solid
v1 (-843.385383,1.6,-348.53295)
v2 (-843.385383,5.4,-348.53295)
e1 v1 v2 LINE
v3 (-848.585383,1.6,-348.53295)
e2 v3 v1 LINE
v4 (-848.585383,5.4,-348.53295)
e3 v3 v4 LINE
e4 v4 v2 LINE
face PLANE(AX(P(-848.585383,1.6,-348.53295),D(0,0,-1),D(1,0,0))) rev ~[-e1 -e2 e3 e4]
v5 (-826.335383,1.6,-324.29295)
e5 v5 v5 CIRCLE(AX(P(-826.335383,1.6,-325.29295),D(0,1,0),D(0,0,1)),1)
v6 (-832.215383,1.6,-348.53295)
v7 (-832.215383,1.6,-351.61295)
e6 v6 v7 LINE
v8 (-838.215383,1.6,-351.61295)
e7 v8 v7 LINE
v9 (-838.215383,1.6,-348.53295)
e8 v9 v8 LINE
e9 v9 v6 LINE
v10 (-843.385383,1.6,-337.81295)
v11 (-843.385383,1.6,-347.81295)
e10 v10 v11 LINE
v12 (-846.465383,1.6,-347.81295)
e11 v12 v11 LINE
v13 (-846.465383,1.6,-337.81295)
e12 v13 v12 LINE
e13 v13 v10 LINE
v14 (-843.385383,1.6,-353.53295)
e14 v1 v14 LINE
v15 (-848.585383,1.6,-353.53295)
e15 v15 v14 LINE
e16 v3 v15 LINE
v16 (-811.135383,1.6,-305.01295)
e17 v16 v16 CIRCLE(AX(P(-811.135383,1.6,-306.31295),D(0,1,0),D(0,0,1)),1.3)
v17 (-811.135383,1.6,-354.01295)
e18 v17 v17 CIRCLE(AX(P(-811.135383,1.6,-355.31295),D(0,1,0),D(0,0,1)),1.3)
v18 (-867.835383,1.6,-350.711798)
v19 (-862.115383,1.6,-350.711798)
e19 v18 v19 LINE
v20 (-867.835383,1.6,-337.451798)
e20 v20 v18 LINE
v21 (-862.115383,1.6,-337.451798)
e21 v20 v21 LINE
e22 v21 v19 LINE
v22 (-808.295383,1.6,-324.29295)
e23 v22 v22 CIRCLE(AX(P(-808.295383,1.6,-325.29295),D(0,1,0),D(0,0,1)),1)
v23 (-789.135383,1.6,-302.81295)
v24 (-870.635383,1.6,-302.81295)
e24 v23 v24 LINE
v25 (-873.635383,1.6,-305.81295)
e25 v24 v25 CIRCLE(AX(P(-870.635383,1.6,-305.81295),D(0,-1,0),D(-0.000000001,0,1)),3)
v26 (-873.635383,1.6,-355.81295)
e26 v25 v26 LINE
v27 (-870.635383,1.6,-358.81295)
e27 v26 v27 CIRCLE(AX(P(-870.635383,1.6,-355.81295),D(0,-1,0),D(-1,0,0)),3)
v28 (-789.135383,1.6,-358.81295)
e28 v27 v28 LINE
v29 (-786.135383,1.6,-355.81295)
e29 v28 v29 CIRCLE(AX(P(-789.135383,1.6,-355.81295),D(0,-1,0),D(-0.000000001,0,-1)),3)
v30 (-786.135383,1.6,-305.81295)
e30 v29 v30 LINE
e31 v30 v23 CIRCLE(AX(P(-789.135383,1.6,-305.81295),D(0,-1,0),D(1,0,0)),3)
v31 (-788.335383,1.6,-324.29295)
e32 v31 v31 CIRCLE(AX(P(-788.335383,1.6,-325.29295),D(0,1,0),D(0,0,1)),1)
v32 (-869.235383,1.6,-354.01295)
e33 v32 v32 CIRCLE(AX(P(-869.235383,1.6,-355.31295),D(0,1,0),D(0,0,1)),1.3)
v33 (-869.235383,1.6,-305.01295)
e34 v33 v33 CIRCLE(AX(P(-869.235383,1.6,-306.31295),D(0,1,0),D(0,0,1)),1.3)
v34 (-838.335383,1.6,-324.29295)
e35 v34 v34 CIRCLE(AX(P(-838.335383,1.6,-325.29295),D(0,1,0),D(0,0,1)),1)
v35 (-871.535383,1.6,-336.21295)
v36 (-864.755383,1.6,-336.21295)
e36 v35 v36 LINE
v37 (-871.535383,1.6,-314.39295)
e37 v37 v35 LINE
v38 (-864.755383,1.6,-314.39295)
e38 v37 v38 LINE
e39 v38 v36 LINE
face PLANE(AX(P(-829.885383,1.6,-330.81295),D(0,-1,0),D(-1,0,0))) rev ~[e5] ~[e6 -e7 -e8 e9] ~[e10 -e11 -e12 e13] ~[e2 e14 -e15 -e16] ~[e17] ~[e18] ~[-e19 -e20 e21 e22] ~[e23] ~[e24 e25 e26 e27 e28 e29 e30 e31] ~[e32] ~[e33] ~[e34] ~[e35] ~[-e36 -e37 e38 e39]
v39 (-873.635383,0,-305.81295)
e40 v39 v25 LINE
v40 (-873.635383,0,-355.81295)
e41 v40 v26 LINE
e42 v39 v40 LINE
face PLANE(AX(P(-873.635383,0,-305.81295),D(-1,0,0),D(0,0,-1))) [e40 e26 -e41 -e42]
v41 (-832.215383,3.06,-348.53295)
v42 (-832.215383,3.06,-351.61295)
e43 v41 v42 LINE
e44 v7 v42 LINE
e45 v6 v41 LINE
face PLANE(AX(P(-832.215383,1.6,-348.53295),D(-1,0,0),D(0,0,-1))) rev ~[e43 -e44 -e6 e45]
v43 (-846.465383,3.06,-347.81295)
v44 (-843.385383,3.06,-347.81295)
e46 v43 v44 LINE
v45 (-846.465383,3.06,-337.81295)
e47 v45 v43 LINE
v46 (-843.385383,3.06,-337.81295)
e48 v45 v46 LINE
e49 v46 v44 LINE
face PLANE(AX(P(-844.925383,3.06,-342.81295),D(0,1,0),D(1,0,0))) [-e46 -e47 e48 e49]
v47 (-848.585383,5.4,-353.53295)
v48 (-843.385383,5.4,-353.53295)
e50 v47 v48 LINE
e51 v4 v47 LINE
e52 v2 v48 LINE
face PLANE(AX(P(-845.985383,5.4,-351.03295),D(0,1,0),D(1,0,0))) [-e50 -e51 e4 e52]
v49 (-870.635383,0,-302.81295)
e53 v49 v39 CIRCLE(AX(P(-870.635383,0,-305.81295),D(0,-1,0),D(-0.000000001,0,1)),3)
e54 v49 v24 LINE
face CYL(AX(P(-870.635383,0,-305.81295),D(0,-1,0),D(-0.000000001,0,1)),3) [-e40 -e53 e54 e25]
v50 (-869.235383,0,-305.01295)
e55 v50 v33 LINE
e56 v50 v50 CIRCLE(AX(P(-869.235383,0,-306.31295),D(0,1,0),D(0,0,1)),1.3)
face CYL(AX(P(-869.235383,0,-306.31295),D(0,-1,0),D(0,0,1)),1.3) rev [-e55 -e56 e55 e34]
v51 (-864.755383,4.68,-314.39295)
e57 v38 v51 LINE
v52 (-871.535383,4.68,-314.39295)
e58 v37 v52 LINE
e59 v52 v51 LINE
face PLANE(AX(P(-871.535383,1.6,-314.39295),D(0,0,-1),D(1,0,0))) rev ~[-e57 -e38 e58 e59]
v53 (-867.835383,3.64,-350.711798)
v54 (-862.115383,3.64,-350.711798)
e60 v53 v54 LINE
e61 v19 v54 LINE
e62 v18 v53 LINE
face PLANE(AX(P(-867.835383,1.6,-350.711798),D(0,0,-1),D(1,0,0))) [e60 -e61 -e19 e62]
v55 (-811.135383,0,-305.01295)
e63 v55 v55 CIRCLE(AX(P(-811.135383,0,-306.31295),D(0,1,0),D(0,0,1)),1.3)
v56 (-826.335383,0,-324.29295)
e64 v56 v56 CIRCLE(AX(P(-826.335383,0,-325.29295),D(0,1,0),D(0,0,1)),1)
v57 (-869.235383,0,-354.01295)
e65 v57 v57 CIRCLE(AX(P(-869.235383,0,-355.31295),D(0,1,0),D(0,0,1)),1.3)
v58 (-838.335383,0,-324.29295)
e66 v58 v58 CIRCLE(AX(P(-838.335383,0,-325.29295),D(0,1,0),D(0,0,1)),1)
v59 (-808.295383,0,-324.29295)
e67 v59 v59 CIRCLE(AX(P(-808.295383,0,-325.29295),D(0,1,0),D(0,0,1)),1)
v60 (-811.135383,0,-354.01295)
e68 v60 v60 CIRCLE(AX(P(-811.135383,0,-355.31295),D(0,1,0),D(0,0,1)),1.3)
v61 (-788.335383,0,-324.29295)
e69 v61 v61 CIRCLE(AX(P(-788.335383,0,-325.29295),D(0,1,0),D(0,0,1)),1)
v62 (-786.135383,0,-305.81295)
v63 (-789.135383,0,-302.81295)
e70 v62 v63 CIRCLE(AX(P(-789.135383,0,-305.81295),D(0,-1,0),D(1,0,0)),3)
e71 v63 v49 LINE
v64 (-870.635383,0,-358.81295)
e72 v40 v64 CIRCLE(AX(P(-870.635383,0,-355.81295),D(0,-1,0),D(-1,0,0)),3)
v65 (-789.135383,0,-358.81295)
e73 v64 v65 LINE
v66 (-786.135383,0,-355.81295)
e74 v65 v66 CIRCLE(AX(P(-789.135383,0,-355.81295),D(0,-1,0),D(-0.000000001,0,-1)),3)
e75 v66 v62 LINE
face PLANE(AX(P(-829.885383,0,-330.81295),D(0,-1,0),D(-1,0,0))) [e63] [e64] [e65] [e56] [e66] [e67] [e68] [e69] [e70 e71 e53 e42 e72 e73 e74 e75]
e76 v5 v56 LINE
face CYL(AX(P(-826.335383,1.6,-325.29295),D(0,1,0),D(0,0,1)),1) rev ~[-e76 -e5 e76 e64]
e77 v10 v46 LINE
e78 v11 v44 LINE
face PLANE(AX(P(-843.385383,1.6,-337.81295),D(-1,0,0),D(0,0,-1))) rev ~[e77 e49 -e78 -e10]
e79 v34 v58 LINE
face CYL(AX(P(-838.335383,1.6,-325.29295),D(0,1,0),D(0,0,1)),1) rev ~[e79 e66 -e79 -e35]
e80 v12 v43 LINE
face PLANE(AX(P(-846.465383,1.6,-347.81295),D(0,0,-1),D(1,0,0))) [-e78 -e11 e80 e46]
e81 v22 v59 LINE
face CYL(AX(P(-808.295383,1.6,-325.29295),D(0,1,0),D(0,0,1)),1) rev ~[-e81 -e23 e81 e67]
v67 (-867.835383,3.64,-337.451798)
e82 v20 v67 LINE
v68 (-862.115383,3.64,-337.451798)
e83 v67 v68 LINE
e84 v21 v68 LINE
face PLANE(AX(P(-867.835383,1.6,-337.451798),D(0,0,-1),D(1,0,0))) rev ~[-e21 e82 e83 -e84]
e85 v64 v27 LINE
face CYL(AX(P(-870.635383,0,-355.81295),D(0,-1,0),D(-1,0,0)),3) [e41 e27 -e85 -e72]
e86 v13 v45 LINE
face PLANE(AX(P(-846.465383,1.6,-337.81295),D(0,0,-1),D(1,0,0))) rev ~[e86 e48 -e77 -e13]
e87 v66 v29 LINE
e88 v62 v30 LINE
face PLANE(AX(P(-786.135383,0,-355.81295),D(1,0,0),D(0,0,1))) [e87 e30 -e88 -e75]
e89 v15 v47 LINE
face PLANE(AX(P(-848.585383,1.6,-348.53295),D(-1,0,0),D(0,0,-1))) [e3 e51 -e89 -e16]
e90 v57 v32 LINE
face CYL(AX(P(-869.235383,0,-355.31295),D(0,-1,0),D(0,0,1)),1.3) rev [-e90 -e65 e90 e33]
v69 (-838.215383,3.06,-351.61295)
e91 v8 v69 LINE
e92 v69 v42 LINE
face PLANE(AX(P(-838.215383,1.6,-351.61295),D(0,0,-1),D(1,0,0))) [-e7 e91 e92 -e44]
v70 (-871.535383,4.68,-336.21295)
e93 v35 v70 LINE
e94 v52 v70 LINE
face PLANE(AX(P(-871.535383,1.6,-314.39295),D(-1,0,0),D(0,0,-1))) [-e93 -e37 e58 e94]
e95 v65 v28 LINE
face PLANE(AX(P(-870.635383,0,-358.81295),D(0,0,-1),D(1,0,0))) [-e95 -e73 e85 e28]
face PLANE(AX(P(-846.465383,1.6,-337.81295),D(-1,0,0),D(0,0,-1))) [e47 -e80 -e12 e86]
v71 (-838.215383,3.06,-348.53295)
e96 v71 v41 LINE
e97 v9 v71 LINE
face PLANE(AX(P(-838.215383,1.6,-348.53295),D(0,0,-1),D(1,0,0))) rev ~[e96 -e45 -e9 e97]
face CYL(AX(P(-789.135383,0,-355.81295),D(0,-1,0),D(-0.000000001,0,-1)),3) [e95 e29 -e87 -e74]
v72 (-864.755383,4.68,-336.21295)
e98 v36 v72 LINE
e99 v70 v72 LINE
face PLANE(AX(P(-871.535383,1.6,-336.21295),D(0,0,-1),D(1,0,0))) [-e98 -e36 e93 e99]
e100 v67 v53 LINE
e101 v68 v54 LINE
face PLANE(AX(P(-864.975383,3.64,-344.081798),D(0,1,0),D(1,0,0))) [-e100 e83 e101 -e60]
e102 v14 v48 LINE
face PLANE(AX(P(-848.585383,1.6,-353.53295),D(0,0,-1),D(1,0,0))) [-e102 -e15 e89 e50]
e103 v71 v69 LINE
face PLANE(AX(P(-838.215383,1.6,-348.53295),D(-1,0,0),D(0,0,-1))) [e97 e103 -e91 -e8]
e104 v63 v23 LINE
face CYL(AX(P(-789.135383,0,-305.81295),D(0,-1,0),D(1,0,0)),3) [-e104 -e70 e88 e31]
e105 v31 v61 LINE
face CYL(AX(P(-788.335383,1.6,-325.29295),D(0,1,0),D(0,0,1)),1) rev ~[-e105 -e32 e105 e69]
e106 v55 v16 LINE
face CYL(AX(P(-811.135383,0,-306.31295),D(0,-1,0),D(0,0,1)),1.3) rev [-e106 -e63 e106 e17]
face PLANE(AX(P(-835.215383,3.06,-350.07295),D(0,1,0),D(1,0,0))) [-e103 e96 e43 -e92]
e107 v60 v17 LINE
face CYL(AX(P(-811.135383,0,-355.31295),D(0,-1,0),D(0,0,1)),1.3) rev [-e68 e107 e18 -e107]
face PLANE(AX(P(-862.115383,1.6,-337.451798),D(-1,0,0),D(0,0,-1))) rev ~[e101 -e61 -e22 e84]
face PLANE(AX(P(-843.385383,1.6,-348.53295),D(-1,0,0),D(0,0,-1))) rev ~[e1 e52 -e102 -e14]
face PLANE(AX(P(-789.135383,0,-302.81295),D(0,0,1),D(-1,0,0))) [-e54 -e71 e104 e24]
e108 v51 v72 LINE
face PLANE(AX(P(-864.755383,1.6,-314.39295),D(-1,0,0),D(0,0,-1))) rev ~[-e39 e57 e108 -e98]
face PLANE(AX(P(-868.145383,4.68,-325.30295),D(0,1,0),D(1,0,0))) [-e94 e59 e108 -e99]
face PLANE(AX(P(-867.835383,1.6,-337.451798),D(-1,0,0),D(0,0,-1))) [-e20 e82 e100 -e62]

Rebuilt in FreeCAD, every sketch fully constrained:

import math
import FreeCAD as App
import Part
import Sketcher
from FreeCAD import Vector
Q = App.Units.Quantity


def add_polygon(sketch, points):
    """Adds a closed chain of lines whose ends are joined by coincident constraints."""
    first, n = sketch.GeometryCount, len(points)
    for a, b in zip(points, points[1:] + points[:1]):
        sketch.addGeometry(Part.LineSegment(App.Vector(*a, 0), App.Vector(*b, 0)), False)
    for i in range(n):
        sketch.addConstraint(Sketcher.Constraint("Coincident", first + i, 2, first + (i + 1) % n, 1))

doc = App.newDocument("Part")
body = doc.addObject("PartDesign::Body", "Body")

sketch1 = doc.addObject("Sketcher::SketchObject", "Sketch")
body.addObject(sketch1)
sketch1.AttachmentSupport = (doc.XZ_Plane, [""])
sketch1.MapMode = "FlatFace"
sketch1.addGeometry(Part.LineSegment(Vector(-789.1, -358.8, 0), Vector(-870.6, -358.8, 0)), False)
sketch1.addGeometry(Part.ArcOfCircle(Part.Circle(Vector(-870.6, -355.8, 0), Vector(0, 0, 1), 3), math.radians(180), math.radians(270)), False)
sketch1.addGeometry(Part.LineSegment(Vector(-873.6, -355.8, 0), Vector(-873.6, -305.8, 0)), False)
sketch1.addGeometry(Part.ArcOfCircle(Part.Circle(Vector(-870.6, -305.8, 0), Vector(0, 0, 1), 3), math.radians(90), math.radians(180)), False)
sketch1.addGeometry(Part.LineSegment(Vector(-870.6, -302.8, 0), Vector(-789.1, -302.8, 0)), False)
sketch1.addGeometry(Part.ArcOfCircle(Part.Circle(Vector(-789.1, -305.8, 0), Vector(0, 0, 1), 3), math.radians(0), math.radians(90)), False)
sketch1.addGeometry(Part.LineSegment(Vector(-786.1, -305.8, 0), Vector(-786.1, -355.8, 0)), False)
sketch1.addGeometry(Part.ArcOfCircle(Part.Circle(Vector(-789.1, -355.8, 0), Vector(0, 0, 1), 3), math.radians(-90), math.radians(0)), False)
sketch1.addGeometry(Part.Circle(Vector(-811.1, -306.3, 0), Vector(0, 0, 1), 1.3), False)
sketch1.addGeometry(Part.Circle(Vector(-869.2, -306.3, 0), Vector(0, 0, 1), 1.3), False)
sketch1.addGeometry(Part.Circle(Vector(-811.1, -355.3, 0), Vector(0, 0, 1), 1.3), False)
sketch1.addGeometry(Part.Circle(Vector(-869.2, -355.3, 0), Vector(0, 0, 1), 1.3), False)
sketch1.addConstraint(Sketcher.Constraint("Tangent", 0, 2, 1, 2))
sketch1.addConstraint(Sketcher.Constraint("Tangent", 1, 1, 2, 1))
sketch1.addConstraint(Sketcher.Constraint("Tangent", 2, 2, 3, 2))
sketch1.addConstraint(Sketcher.Constraint("Tangent", 3, 1, 4, 1))
sketch1.addConstraint(Sketcher.Constraint("Tangent", 4, 2, 5, 2))
sketch1.addConstraint(Sketcher.Constraint("Tangent", 5, 1, 6, 1))
sketch1.addConstraint(Sketcher.Constraint("Tangent", 6, 2, 7, 2))
sketch1.addConstraint(Sketcher.Constraint("Tangent", 7, 1, 0, 1))
sketch1.addConstraint(Sketcher.Constraint("Horizontal", 0))
sketch1.addConstraint(Sketcher.Constraint("Vertical", 2))
sketch1.addConstraint(Sketcher.Constraint("Horizontal", 4))
sketch1.addConstraint(Sketcher.Constraint("Vertical", 6))
sketch1.addConstraint(Sketcher.Constraint("Equal", 1, 3))
sketch1.addConstraint(Sketcher.Constraint("Equal", 3, 5))
sketch1.addConstraint(Sketcher.Constraint("Equal", 5, 7))
sketch1.addConstraint(Sketcher.Constraint("Equal", 8, 9))
sketch1.addConstraint(Sketcher.Constraint("Equal", 9, 10))
sketch1.addConstraint(Sketcher.Constraint("Equal", 10, 11))
sketch1.addConstraint(Sketcher.Constraint("Horizontal", 8, 3, 9, 3))
sketch1.addConstraint(Sketcher.Constraint("Horizontal", 10, 3, 11, 3))
sketch1.addConstraint(Sketcher.Constraint("Vertical", 8, 3, 10, 3))
sketch1.addConstraint(Sketcher.Constraint("Vertical", 9, 3, 11, 3))
sketch1.addConstraint(Sketcher.Constraint("Radius", 1, Q("3 mm")))
sketch1.addConstraint(Sketcher.Constraint("Diameter", 8, Q("2.6 mm")))
sketch1.addConstraint(Sketcher.Constraint("DistanceY", 2, 1, 2, 2, Q("50 mm")))
sketch1.addConstraint(Sketcher.Constraint("DistanceX", 0, 2, 0, 1, Q("81.5 mm")))
sketch1.addConstraint(Sketcher.Constraint("DistanceX", 8, 3, 5, 3, Q("22 mm")))
sketch1.addConstraint(Sketcher.Constraint("DistanceY", 10, 3, 8, 3, Q("49 mm")))
sketch1.addConstraint(Sketcher.Constraint("DistanceY", 8, 3, 5, 3, Q("0.5 mm")))
sketch1.addConstraint(Sketcher.Constraint("DistanceX", 3, 3, 9, 3, Q("1.4 mm")))
sketch1.addConstraint(Sketcher.Constraint("DistanceY", 1, 3, -1, 1, Q("355.81295 mm")))
sketch1.addConstraint(Sketcher.Constraint("DistanceX", 1, 3, -1, 1, Q("870.635383 mm")))
pad1 = doc.addObject("PartDesign::Pad", "Pad")
body.addObject(pad1)
pad1.Profile = sketch1
pad1.Length = 1.6
pad1.Reversed = True

sketch2 = doc.addObject("Sketcher::SketchObject", "Sketch001")
body.addObject(sketch2)
sketch2.AttachmentSupport = (doc.XZ_Plane, [""])
sketch2.MapMode = "FlatFace"
sketch2.AttachmentOffset = App.Placement(Vector(0, 0, -1.6), App.Rotation())
sketch2.addGeometry(Part.Circle(Vector(-788.3, -325.3, 0), Vector(0, 0, 1), 1), False)
sketch2.addConstraint(Sketcher.Constraint("Diameter", 0, Q("2 mm")))
sketch2.addConstraint(Sketcher.Constraint("DistanceY", 0, 3, -1, 1, Q("325.29295 mm")))
sketch2.addConstraint(Sketcher.Constraint("DistanceX", 0, 3, -1, 1, Q("788.335383 mm")))
pocket1 = doc.addObject("PartDesign::Pocket", "Pocket")
body.addObject(pocket1)
pocket1.Profile = sketch2
pocket1.Type = "UpToFirst"
pocket1.Reversed = True

sketch3 = doc.addObject("Sketcher::SketchObject", "Sketch002")
body.addObject(sketch3)
sketch3.AttachmentSupport = (doc.XZ_Plane, [""])
sketch3.MapMode = "FlatFace"
sketch3.AttachmentOffset = App.Placement(Vector(0, 0, -1.6), App.Rotation())
sketch3.addGeometry(Part.Circle(Vector(-808.3, -325.3, 0), Vector(0, 0, 1), 1), False)
sketch3.addConstraint(Sketcher.Constraint("Diameter", 0, Q("2 mm")))
sketch3.addConstraint(Sketcher.Constraint("DistanceY", 0, 3, -1, 1, Q("325.29295 mm")))
sketch3.addConstraint(Sketcher.Constraint("DistanceX", 0, 3, -1, 1, Q("808.295383 mm")))
pocket2 = doc.addObject("PartDesign::Pocket", "Pocket001")
body.addObject(pocket2)
pocket2.Profile = sketch3
pocket2.Type = "UpToFirst"
pocket2.Reversed = True

sketch4 = doc.addObject("Sketcher::SketchObject", "Sketch003")
body.addObject(sketch4)
sketch4.AttachmentSupport = (doc.XZ_Plane, [""])
sketch4.MapMode = "FlatFace"
sketch4.AttachmentOffset = App.Placement(Vector(0, 0, -1.6), App.Rotation())
sketch4.addGeometry(Part.Circle(Vector(-826.3, -325.3, 0), Vector(0, 0, 1), 1), False)
sketch4.addConstraint(Sketcher.Constraint("Diameter", 0, Q("2 mm")))
sketch4.addConstraint(Sketcher.Constraint("DistanceY", 0, 3, -1, 1, Q("325.29295 mm")))
sketch4.addConstraint(Sketcher.Constraint("DistanceX", 0, 3, -1, 1, Q("826.335383 mm")))
pocket3 = doc.addObject("PartDesign::Pocket", "Pocket002")
body.addObject(pocket3)
pocket3.Profile = sketch4
pocket3.Type = "UpToFirst"
pocket3.Reversed = True

sketch5 = doc.addObject("Sketcher::SketchObject", "Sketch004")
body.addObject(sketch5)
sketch5.AttachmentSupport = (doc.XZ_Plane, [""])
sketch5.MapMode = "FlatFace"
sketch5.AttachmentOffset = App.Placement(Vector(0, 0, -1.6), App.Rotation())
sketch5.addGeometry(Part.Circle(Vector(-838.3, -325.3, 0), Vector(0, 0, 1), 1), False)
sketch5.addConstraint(Sketcher.Constraint("Diameter", 0, Q("2 mm")))
sketch5.addConstraint(Sketcher.Constraint("DistanceY", 0, 3, -1, 1, Q("325.29295 mm")))
sketch5.addConstraint(Sketcher.Constraint("DistanceX", 0, 3, -1, 1, Q("838.335383 mm")))
pocket4 = doc.addObject("PartDesign::Pocket", "Pocket003")
body.addObject(pocket4)
pocket4.Profile = sketch5
pocket4.Type = "UpToFirst"
pocket4.Reversed = True

sketch6 = doc.addObject("Sketcher::SketchObject", "Sketch005")
body.addObject(sketch6)
sketch6.AttachmentSupport = (doc.XZ_Plane, [""])
sketch6.MapMode = "FlatFace"
sketch6.AttachmentOffset = App.Placement(Vector(0, 0, -1.6), App.Rotation())
add_polygon(sketch6, [(-872, -336), (-872, -314), (-865, -314), (-865, -336)])
sketch6.addConstraint(Sketcher.Constraint("Vertical", 0))
sketch6.addConstraint(Sketcher.Constraint("Horizontal", 1))
sketch6.addConstraint(Sketcher.Constraint("Vertical", 2))
sketch6.addConstraint(Sketcher.Constraint("Horizontal", 3))
sketch6.addConstraint(Sketcher.Constraint("DistanceX", 1, 1, 1, 2, Q("6.78 mm")))
sketch6.addConstraint(Sketcher.Constraint("DistanceY", 0, 1, 0, 2, Q("21.82 mm")))
sketch6.addConstraint(Sketcher.Constraint("DistanceY", 0, 2, -1, 1, Q("314.39295 mm")))
sketch6.addConstraint(Sketcher.Constraint("DistanceX", 0, 2, -1, 1, Q("871.535383 mm")))
pad2 = doc.addObject("PartDesign::Pad", "Pad001")
body.addObject(pad2)
pad2.Profile = sketch6
pad2.Length = 3.08
pad2.Reversed = True

sketch7 = doc.addObject("Sketcher::SketchObject", "Sketch006")
body.addObject(sketch7)
sketch7.AttachmentSupport = (doc.XZ_Plane, [""])
sketch7.MapMode = "FlatFace"
sketch7.AttachmentOffset = App.Placement(Vector(0, 0, -1.6), App.Rotation())
add_polygon(sketch7, [(-868, -351), (-868, -337), (-862, -337), (-862, -351)])
sketch7.addConstraint(Sketcher.Constraint("Vertical", 0))
sketch7.addConstraint(Sketcher.Constraint("Horizontal", 1))
sketch7.addConstraint(Sketcher.Constraint("Vertical", 2))
sketch7.addConstraint(Sketcher.Constraint("Horizontal", 3))
sketch7.addConstraint(Sketcher.Constraint("DistanceX", 1, 1, 1, 2, Q("5.72 mm")))
sketch7.addConstraint(Sketcher.Constraint("DistanceY", 0, 1, 0, 2, Q("13.26 mm")))
sketch7.addConstraint(Sketcher.Constraint("DistanceY", 0, 2, -1, 1, Q("337.451798 mm")))
sketch7.addConstraint(Sketcher.Constraint("DistanceX", 0, 2, -1, 1, Q("867.835383 mm")))
pad3 = doc.addObject("PartDesign::Pad", "Pad002")
body.addObject(pad3)
pad3.Profile = sketch7
pad3.Length = 2.04
pad3.Reversed = True

sketch8 = doc.addObject("Sketcher::SketchObject", "Sketch007")
body.addObject(sketch8)
sketch8.AttachmentSupport = (doc.XZ_Plane, [""])
sketch8.MapMode = "FlatFace"
sketch8.AttachmentOffset = App.Placement(Vector(0, 0, -1.6), App.Rotation())
add_polygon(sketch8, [(-849, -354), (-849, -349), (-843, -349), (-843, -354)])
sketch8.addConstraint(Sketcher.Constraint("Vertical", 0))
sketch8.addConstraint(Sketcher.Constraint("Horizontal", 1))
sketch8.addConstraint(Sketcher.Constraint("Vertical", 2))
sketch8.addConstraint(Sketcher.Constraint("Horizontal", 3))
sketch8.addConstraint(Sketcher.Constraint("DistanceY", 0, 1, 0, 2, Q("5 mm")))
sketch8.addConstraint(Sketcher.Constraint("DistanceX", 1, 1, 1, 2, Q("5.2 mm")))
sketch8.addConstraint(Sketcher.Constraint("DistanceY", 0, 2, -1, 1, Q("348.53295 mm")))
sketch8.addConstraint(Sketcher.Constraint("DistanceX", 0, 2, -1, 1, Q("848.585383 mm")))
pad4 = doc.addObject("PartDesign::Pad", "Pad003")
body.addObject(pad4)
pad4.Profile = sketch8
pad4.Length = 3.8
pad4.Reversed = True

sketch9 = doc.addObject("Sketcher::SketchObject", "Sketch008")
body.addObject(sketch9)
sketch9.AttachmentSupport = (doc.XZ_Plane, [""])
sketch9.MapMode = "FlatFace"
sketch9.AttachmentOffset = App.Placement(Vector(0, 0, -1.6), App.Rotation())
add_polygon(sketch9, [(-846.5, -347.8), (-846.5, -337.8), (-843.4, -337.8), (-843.4, -347.8)])
add_polygon(sketch9, [(-838.2, -351.6), (-838.2, -348.5), (-832.2, -348.5), (-832.2, -351.6)])
sketch9.addConstraint(Sketcher.Constraint("Vertical", 0))
sketch9.addConstraint(Sketcher.Constraint("Horizontal", 1))
sketch9.addConstraint(Sketcher.Constraint("Vertical", 2))
sketch9.addConstraint(Sketcher.Constraint("Horizontal", 3))
sketch9.addConstraint(Sketcher.Constraint("Vertical", 4))
sketch9.addConstraint(Sketcher.Constraint("Horizontal", 5))
sketch9.addConstraint(Sketcher.Constraint("Vertical", 6))
sketch9.addConstraint(Sketcher.Constraint("Horizontal", 7))
sketch9.addConstraint(Sketcher.Constraint("Equal", 3, 4))
sketch9.addConstraint(Sketcher.Constraint("DistanceX", 5, 1, 5, 2, Q("6 mm")))
sketch9.addConstraint(Sketcher.Constraint("DistanceY", 0, 1, 0, 2, Q("10 mm")))
sketch9.addConstraint(Sketcher.Constraint("DistanceX", 1, 1, 1, 2, Q("3.08 mm")))
sketch9.addConstraint(Sketcher.Constraint("DistanceY", 6, 2, 2, 2, Q("3.8 mm")))
sketch9.addConstraint(Sketcher.Constraint("DistanceX", 2, 2, 4, 2, Q("5.17 mm")))
sketch9.addConstraint(Sketcher.Constraint("DistanceY", 0, 2, -1, 1, Q("337.81295 mm")))
sketch9.addConstraint(Sketcher.Constraint("DistanceX", 0, 2, -1, 1, Q("846.465383 mm")))
pad5 = doc.addObject("PartDesign::Pad", "Pad004")
body.addObject(pad5)
pad5.Profile = sketch9
pad5.Length = 1.46
pad5.Reversed = True

doc.recompute()
